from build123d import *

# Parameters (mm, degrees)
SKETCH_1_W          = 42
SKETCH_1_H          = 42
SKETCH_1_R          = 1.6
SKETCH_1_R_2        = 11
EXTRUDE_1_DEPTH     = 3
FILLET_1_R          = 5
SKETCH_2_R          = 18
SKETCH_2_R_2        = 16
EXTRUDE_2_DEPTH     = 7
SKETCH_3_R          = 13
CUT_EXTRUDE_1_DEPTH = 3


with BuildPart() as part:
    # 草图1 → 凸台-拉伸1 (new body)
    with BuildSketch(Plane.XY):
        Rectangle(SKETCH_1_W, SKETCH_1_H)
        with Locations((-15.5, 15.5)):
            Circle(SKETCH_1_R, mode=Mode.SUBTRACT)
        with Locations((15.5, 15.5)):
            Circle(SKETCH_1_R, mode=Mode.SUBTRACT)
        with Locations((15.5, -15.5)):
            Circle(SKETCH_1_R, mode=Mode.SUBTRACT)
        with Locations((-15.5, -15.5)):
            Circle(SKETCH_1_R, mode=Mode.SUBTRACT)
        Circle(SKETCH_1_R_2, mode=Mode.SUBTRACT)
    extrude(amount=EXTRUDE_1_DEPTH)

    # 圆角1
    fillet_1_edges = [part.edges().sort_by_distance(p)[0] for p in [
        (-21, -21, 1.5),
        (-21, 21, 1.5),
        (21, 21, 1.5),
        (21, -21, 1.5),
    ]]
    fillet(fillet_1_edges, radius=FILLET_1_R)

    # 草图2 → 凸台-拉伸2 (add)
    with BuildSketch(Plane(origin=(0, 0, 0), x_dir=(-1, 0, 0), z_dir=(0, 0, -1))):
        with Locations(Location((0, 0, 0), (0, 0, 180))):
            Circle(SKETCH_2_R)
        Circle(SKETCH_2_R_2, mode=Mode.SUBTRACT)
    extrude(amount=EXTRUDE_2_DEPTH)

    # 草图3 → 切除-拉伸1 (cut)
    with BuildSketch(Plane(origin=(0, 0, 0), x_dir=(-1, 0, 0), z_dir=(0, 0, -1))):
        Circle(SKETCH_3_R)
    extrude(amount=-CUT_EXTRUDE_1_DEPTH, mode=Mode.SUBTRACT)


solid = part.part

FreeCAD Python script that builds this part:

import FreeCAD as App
import Part
import Sketcher
from FreeCAD import Vector
Q = App.Units.Quantity


def edges_at(feature, points):
    """Names of the edges that pass closest to the given points."""
    edges = feature.Shape.Edges
    near = lambda p: min(range(len(edges)), key=lambda i: edges[i].distToShape(Part.Vertex(*p))[0])
    return sorted({f"Edge{near(p) + 1}" for p in points})

doc = App.newDocument("Part")
body = doc.addObject("PartDesign::Body", "Body")

# Sketch on XY plane
sketch1 = body.newObject("Sketcher::SketchObject", "Sketch")
sketch1.AttachmentSupport = (doc.getObject("XY_Plane"), [""])
sketch1.MapMode = "FlatFace"
sketch1.addGeometry(Part.LineSegment(Vector(-21, 21, 0), Vector(-21, -21, 0)), False)
sketch1.addGeometry(Part.LineSegment(Vector(-21, -21, 0), Vector(21, -21, 0)), False)
sketch1.addGeometry(Part.LineSegment(Vector(21, -21, 0), Vector(21, 21, 0)), False)
sketch1.addGeometry(Part.LineSegment(Vector(21, 21, 0), Vector(-21, 21, 0)), False)
sketch1.addGeometry(Part.Circle(Vector(-15.5, -15.5, 0), Vector(0, 0, 1), 1.6), False)
sketch1.addGeometry(Part.Circle(Vector(15.5, -15.5, 0), Vector(0, 0, 1), 1.6), False)
sketch1.addGeometry(Part.Circle(Vector(-15.5, 15.5, 0), Vector(0, 0, 1), 1.6), False)
sketch1.addGeometry(Part.Circle(Vector(0, 0, 0), Vector(0, 0, 1), 11), False)
sketch1.addGeometry(Part.Circle(Vector(15.5, 15.5, 0), Vector(0, 0, 1), 1.6), False)
sketch1.addConstraint(Sketcher.Constraint("Coincident", 0, 2, 1, 1))
sketch1.addConstraint(Sketcher.Constraint("Coincident", 1, 2, 2, 1))
sketch1.addConstraint(Sketcher.Constraint("Coincident", 2, 2, 3, 1))
sketch1.addConstraint(Sketcher.Constraint("Coincident", 3, 2, 0, 1))
sketch1.addConstraint(Sketcher.Constraint("Vertical", 0))
sketch1.addConstraint(Sketcher.Constraint("Horizontal", 1))
sketch1.addConstraint(Sketcher.Constraint("Vertical", 2))
sketch1.addConstraint(Sketcher.Constraint("Horizontal", 3))
sketch1.addConstraint(Sketcher.Constraint("Coincident", 7, 3, -1, 1))
sketch1.addConstraint(Sketcher.Constraint("Equal", 4, 5))
sketch1.addConstraint(Sketcher.Constraint("Equal", 5, 6))
sketch1.addConstraint(Sketcher.Constraint("Equal", 6, 8))
sketch1.addConstraint(Sketcher.Constraint("Symmetric", 5, 3, 6, 3, -1, 1))
sketch1.addConstraint(Sketcher.Constraint("Symmetric", 4, 3, 8, 3, -1, 1))
sketch1.addConstraint(Sketcher.Constraint("Symmetric", 0, 2, 2, 2, -1, 1))
sketch1.addConstraint(Sketcher.Constraint("Symmetric", 4, 3, 5, 3, -2))
sketch1.addConstraint(Sketcher.Constraint("Equal", 3, 0))
sketch1.addConstraint(Sketcher.Constraint("Diameter", 7, Q("22 mm")))
sketch1.addConstraint(Sketcher.Constraint("Diameter", 4, Q("3.2 mm")))
sketch1.addConstraint(Sketcher.Constraint("DistanceX", 1, 1, 1, 2, Q("42 mm")))
sketch1.addConstraint(Sketcher.Constraint("DistanceX", 4, 3, 5, 3, Q("31 mm")))
sketch1.addConstraint(Sketcher.Constraint("DistanceY", 4, 3, 6, 3, Q("31 mm")))
pad1 = body.newObject("PartDesign::Pad", "Pad")
pad1.Profile = sketch1
pad1.Length = 3
doc.recompute()

fillet = body.newObject("PartDesign::Fillet", "Fillet")
fillet.Base = (pad1, edges_at(pad1, [
    (-21, -21, 1.5),
    (-21, 21, 1.5),
    (21, 21, 1.5),
    (21, -21, 1.5),
]))
fillet.Radius = 5

# Sketch on XY plane
sketch2 = body.newObject("Sketcher::SketchObject", "Sketch001")
sketch2.AttachmentSupport = (doc.getObject("XY_Plane"), [""])
sketch2.MapMode = "FlatFace"
sketch2.addGeometry(Part.Circle(Vector(0, 0, 0), Vector(0, 0, 1), 18), False)
sketch2.addGeometry(Part.Circle(Vector(0, 0, 0), Vector(0, 0, 1), 16), False)
sketch2.addConstraint(Sketcher.Constraint("Coincident", 0, 3, -1, 1))
sketch2.addConstraint(Sketcher.Constraint("Coincident", 1, 3, -1, 1))
sketch2.addConstraint(Sketcher.Constraint("Diameter", 0, Q("36 mm")))
sketch2.addConstraint(Sketcher.Constraint("Diameter", 1, Q("32 mm")))
pad2 = body.newObject("PartDesign::Pad", "Pad001")
pad2.Profile = sketch2
pad2.Length = 7
pad2.Reversed = True

# Sketch on XY plane
sketch3 = body.newObject("Sketcher::SketchObject", "Sketch002")
sketch3.AttachmentSupport = (doc.getObject("XY_Plane"), [""])
sketch3.MapMode = "FlatFace"
sketch3.addGeometry(Part.Circle(Vector(0, 0, 0), Vector(0, 0, 1), 13), False)
sketch3.addConstraint(Sketcher.Constraint("Coincident", 0, 3, -1, 1))
sketch3.addConstraint(Sketcher.Constraint("Diameter", 0, Q("26 mm")))
pocket1 = body.newObject("PartDesign::Pocket", "Pocket")
pocket1.Profile = sketch3
pocket1.Length = 3
pocket1.Reversed = True

doc.recompute()
